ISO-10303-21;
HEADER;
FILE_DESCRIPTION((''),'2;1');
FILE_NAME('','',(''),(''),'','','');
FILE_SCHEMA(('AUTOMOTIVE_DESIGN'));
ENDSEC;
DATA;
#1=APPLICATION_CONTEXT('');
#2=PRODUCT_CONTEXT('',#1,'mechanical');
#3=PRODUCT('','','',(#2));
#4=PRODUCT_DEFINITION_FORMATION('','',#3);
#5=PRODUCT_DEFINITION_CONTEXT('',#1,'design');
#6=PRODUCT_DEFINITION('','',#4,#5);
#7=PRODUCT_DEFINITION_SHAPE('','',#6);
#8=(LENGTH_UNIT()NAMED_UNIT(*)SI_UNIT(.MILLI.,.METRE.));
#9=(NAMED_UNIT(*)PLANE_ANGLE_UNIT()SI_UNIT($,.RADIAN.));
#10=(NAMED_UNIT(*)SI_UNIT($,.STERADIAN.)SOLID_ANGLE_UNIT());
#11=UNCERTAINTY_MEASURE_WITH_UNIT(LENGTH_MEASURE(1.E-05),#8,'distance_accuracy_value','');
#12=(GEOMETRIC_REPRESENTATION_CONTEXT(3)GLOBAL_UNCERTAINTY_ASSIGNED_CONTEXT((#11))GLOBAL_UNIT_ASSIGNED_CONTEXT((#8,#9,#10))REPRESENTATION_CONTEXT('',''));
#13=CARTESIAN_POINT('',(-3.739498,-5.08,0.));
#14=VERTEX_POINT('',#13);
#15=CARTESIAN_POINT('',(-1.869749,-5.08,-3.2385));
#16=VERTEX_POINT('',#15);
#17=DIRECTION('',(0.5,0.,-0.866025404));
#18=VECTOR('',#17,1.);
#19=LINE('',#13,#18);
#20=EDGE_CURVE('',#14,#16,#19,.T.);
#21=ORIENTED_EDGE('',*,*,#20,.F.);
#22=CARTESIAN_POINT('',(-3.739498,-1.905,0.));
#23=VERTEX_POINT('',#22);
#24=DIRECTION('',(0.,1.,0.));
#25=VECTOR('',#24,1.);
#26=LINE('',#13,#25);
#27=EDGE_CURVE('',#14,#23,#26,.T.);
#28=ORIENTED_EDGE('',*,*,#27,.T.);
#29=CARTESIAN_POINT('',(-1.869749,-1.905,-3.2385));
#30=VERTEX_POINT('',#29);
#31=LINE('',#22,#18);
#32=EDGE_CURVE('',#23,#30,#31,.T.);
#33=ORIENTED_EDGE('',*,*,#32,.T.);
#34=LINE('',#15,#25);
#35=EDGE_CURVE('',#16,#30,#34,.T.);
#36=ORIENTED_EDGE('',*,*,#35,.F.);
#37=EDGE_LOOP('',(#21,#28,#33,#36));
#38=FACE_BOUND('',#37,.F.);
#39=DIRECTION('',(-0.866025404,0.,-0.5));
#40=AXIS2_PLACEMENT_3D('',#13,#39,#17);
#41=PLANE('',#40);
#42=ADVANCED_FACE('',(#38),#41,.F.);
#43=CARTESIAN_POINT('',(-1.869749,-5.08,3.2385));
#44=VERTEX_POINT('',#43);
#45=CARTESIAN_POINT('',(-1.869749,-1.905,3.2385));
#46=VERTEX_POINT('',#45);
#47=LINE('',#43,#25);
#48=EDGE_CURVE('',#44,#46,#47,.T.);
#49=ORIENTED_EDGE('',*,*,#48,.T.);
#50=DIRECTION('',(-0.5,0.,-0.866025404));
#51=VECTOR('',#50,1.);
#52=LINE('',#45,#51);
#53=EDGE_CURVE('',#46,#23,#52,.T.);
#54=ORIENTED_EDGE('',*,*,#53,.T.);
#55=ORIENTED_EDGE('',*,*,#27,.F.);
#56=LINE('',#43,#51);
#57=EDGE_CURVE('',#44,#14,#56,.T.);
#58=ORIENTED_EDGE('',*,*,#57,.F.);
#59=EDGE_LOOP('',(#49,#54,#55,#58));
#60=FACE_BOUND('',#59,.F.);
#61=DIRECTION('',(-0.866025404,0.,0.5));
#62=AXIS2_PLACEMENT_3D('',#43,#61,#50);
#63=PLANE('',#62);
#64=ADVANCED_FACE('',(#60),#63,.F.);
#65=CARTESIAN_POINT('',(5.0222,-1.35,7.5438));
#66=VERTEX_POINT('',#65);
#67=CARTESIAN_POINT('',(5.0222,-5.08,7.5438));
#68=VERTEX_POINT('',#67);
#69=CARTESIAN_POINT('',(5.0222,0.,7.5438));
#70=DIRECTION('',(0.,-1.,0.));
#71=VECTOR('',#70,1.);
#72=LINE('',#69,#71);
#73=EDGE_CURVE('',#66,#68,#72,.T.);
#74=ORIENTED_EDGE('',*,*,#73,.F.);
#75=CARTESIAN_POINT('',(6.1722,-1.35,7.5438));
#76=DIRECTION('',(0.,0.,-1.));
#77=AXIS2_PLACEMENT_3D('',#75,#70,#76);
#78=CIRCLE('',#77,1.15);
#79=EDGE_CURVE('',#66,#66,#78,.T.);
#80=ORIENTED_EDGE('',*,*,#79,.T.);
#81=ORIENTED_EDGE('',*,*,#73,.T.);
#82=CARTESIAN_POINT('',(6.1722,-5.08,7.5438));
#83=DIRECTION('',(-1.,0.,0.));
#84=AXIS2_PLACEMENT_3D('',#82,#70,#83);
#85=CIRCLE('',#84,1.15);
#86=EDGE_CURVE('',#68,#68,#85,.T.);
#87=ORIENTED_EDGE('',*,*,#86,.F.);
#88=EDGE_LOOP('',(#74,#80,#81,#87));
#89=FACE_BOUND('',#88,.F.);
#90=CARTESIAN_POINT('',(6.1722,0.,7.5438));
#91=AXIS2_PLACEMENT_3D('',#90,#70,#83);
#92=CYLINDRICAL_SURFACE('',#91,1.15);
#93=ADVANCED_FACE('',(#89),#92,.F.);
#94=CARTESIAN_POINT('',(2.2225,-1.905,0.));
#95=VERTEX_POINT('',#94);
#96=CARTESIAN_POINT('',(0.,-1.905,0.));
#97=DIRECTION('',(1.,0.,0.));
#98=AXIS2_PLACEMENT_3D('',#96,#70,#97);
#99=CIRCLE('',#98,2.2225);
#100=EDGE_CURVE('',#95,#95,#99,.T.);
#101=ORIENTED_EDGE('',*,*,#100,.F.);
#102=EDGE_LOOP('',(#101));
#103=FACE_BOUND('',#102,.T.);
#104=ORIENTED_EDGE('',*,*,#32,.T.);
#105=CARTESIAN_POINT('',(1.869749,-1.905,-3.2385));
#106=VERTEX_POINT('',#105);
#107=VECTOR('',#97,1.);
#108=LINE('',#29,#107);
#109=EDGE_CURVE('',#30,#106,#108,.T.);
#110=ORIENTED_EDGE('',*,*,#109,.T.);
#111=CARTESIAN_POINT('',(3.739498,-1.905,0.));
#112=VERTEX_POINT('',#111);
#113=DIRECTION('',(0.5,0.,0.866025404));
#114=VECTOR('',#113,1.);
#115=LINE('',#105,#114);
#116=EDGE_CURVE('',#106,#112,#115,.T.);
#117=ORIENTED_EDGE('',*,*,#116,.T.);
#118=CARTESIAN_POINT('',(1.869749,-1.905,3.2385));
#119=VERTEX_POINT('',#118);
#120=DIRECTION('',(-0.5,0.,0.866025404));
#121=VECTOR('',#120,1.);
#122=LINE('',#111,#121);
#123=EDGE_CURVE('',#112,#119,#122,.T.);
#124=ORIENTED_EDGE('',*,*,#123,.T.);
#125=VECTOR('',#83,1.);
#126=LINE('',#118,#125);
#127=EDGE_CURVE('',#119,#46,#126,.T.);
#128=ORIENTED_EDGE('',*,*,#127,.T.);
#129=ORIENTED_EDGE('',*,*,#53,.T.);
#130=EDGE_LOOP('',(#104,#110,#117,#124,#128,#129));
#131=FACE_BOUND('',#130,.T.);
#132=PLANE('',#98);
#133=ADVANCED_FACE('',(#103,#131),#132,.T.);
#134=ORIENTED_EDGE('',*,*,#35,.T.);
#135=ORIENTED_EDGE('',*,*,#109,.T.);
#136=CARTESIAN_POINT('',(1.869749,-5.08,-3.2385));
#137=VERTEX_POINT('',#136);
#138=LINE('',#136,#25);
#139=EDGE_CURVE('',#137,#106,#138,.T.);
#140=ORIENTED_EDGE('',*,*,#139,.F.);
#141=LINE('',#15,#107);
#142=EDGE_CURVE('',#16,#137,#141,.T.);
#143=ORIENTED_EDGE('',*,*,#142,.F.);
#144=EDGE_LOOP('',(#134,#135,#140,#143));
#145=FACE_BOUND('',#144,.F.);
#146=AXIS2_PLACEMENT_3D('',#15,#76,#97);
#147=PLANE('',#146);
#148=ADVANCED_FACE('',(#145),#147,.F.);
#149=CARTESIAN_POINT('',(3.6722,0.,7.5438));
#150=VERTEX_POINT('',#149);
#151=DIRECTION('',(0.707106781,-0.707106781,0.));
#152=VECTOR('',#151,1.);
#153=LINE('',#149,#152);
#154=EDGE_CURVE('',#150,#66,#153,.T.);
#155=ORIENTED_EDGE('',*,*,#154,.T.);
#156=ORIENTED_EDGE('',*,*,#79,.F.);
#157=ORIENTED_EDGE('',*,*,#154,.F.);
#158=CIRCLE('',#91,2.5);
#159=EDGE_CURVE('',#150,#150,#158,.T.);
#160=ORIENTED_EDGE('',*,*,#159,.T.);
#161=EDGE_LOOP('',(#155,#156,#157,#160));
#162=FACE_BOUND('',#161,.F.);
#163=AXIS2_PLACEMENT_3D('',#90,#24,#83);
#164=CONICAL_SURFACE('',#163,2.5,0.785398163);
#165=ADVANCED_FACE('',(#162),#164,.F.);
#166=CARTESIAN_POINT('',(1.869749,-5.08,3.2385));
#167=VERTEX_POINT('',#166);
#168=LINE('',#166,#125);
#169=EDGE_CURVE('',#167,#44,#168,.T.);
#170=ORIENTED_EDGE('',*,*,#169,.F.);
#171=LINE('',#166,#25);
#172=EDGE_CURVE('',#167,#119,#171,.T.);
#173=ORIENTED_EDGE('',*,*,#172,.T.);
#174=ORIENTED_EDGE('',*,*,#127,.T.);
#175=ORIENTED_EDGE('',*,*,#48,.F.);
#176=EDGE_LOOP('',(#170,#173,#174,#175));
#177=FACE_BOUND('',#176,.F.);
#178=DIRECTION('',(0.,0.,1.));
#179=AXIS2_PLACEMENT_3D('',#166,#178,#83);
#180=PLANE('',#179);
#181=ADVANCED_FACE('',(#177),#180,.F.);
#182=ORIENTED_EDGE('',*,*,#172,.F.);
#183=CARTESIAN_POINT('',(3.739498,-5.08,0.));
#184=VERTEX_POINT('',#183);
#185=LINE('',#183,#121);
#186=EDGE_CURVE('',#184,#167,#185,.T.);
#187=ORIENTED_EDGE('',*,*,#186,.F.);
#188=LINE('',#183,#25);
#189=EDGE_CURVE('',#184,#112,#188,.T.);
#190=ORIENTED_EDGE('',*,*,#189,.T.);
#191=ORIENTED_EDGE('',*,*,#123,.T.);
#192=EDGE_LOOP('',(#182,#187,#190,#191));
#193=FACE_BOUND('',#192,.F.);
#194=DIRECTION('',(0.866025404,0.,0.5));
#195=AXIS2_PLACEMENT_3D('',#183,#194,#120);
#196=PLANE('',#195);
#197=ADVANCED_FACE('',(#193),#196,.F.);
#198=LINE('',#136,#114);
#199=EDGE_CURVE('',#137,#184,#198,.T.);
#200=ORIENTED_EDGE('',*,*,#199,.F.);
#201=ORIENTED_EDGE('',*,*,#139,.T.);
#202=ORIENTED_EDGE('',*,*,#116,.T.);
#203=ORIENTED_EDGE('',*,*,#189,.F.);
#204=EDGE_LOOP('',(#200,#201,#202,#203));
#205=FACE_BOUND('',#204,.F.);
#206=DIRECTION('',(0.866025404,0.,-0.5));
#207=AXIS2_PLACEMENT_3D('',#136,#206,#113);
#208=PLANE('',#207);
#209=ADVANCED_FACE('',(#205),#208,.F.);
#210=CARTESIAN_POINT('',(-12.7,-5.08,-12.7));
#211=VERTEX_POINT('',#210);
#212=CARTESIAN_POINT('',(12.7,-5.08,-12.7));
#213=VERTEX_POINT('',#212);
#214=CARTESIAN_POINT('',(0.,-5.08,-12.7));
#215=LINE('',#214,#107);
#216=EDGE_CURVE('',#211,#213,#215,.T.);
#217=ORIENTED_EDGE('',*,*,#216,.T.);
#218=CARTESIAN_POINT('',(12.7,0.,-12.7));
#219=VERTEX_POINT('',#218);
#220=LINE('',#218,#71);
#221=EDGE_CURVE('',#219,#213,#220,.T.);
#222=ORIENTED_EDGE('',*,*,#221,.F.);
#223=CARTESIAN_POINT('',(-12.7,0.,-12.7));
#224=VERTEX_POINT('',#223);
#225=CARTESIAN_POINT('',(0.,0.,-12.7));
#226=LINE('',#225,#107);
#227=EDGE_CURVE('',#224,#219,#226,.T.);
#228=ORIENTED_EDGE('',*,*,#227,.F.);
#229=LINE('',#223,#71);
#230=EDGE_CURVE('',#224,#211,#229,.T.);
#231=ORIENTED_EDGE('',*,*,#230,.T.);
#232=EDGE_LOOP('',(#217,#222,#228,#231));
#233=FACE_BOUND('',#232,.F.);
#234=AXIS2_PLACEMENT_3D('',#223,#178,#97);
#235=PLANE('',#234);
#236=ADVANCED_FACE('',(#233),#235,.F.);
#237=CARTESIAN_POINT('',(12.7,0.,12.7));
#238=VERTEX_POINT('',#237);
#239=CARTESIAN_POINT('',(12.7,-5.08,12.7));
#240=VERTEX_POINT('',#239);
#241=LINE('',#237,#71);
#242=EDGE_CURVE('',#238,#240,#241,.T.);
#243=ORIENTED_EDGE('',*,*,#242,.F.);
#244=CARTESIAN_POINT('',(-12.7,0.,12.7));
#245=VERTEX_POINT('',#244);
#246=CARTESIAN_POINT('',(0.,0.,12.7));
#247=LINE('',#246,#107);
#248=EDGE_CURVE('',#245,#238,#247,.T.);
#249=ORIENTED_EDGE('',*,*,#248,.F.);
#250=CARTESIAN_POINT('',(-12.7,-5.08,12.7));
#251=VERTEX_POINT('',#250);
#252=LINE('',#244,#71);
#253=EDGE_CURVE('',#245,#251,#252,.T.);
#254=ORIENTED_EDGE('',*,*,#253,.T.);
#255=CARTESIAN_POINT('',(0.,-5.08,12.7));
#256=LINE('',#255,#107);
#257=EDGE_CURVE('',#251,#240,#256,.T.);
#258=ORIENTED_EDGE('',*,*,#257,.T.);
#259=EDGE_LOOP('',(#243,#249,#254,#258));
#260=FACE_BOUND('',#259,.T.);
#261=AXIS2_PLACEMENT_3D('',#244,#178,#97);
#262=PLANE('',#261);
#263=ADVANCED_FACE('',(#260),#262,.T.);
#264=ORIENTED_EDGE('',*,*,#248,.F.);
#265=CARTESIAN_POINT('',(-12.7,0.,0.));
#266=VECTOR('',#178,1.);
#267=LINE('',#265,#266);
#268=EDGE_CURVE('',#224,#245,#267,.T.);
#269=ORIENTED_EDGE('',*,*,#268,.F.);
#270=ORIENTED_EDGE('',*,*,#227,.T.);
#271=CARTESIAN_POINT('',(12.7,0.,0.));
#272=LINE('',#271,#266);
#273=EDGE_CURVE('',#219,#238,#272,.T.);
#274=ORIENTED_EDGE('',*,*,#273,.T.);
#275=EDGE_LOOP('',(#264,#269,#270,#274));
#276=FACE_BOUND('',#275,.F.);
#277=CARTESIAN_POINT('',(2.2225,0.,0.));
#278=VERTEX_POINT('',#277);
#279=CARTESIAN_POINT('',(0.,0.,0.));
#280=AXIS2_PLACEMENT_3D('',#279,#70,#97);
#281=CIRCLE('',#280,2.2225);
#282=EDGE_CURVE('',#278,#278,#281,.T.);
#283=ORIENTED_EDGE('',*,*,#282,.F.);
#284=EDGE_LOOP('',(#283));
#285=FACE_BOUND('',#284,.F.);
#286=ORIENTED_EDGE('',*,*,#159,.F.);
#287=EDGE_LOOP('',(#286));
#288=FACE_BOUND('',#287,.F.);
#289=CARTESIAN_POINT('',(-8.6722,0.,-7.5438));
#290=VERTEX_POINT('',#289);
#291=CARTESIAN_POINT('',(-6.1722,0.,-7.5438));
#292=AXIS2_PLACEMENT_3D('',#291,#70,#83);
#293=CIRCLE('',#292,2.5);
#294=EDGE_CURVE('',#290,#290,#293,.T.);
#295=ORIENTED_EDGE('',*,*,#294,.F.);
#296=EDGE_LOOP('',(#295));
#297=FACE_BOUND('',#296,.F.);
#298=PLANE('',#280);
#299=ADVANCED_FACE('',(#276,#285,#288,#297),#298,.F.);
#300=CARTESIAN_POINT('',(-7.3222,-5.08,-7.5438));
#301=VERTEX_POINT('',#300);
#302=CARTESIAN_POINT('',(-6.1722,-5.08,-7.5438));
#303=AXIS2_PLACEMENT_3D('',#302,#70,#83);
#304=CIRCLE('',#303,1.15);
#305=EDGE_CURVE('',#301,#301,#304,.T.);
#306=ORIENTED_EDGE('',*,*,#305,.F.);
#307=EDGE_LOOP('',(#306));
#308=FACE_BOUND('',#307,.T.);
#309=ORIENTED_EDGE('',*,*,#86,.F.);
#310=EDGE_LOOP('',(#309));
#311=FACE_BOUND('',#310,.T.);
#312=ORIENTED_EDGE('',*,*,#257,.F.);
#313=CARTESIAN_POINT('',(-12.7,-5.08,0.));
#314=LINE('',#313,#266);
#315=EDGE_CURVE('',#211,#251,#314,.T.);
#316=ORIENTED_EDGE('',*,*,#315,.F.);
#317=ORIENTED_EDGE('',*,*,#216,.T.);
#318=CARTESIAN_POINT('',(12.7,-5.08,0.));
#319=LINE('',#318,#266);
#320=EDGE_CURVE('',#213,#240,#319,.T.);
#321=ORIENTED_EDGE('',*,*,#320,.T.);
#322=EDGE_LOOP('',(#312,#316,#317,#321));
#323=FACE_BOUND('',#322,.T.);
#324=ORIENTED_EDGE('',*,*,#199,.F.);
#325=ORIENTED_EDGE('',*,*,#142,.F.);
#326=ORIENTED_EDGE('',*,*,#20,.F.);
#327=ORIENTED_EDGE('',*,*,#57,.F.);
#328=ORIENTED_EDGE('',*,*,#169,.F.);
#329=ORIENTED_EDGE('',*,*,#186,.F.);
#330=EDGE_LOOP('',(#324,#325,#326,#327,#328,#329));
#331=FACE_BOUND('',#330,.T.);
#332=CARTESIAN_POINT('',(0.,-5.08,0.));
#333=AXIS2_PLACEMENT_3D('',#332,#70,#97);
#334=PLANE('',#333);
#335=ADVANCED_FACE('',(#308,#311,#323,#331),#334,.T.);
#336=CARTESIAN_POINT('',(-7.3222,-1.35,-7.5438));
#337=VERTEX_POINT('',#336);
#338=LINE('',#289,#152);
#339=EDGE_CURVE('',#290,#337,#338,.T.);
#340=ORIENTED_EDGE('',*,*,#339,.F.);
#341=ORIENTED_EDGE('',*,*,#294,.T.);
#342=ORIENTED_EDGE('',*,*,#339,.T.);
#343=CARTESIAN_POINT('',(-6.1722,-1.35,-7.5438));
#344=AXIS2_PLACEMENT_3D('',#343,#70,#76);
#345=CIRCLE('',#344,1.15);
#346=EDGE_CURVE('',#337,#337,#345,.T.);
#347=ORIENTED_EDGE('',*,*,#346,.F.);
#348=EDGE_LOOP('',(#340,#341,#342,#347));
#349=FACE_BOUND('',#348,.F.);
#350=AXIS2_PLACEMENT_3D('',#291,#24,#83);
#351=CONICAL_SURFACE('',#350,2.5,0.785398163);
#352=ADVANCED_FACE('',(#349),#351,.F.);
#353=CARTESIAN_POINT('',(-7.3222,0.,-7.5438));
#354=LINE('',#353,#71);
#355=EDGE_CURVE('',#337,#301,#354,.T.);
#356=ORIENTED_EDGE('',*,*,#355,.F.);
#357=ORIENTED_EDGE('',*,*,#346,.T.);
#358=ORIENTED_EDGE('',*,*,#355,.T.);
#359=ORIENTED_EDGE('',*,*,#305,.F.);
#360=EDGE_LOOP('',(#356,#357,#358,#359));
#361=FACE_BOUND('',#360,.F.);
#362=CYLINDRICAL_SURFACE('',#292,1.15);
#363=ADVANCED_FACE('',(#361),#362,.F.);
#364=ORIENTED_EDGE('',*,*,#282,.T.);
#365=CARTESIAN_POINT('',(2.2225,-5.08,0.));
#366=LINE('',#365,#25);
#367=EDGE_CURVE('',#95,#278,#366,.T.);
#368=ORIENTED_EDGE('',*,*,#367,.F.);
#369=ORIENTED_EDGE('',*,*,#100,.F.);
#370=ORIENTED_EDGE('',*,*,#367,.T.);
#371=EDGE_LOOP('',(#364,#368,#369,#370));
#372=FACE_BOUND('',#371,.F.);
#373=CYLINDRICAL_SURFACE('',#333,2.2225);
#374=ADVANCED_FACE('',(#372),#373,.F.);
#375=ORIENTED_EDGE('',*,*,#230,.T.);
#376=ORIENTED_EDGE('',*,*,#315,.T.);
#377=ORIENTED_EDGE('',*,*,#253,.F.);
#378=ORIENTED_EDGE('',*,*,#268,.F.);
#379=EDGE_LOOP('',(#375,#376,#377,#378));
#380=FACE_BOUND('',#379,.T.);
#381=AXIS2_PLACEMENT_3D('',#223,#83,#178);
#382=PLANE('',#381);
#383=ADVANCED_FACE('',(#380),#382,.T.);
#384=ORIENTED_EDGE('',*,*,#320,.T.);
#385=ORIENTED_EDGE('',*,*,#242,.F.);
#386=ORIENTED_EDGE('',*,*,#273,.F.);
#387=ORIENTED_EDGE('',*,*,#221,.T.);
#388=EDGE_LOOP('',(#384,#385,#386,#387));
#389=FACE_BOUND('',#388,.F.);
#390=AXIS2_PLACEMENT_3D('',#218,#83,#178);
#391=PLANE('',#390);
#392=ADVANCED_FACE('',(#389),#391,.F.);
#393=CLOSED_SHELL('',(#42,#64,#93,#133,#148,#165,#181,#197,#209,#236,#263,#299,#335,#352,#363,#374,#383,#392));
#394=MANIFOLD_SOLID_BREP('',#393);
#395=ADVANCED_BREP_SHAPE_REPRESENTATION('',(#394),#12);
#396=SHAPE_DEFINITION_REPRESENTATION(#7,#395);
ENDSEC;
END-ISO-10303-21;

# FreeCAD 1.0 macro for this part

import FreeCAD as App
import Part
import Sketcher
Q = App.Units.Quantity


def add_polygon(sketch, points):
    """Adds a closed chain of lines whose ends are joined by coincident constraints."""
    first, n = sketch.GeometryCount, len(points)
    for a, b in zip(points, points[1:] + points[:1]):
        sketch.addGeometry(Part.LineSegment(App.Vector(*a, 0), App.Vector(*b, 0)), False)
    for i in range(n):
        sketch.addConstraint(Sketcher.Constraint("Coincident", first + i, 2, first + (i + 1) % n, 1))

doc = App.newDocument("Part")
params = doc.addObject("Spreadsheet::Sheet", "Params")
for row, (alias, value) in enumerate([
    ("sketch1_width", "1 in"),
    ("pad1_length", "0.2 in"),
    ("hole_diameter", "2.3 mm"),
    ("hole_csink_diameter", "5 mm"),
    ("pocket1_length", "0.125 in"),
    ("sketch4_diameter", "0.175 in"),
], start=1):
    params.set(f"A{row}", alias)
    params.set(f"B{row}", "=" + value)
    params.setAlias(f"B{row}", alias)

body = doc.addObject("PartDesign::Body", "Body")

# Sketch on XZ plane
sketch1 = doc.addObject("Sketcher::SketchObject", "Sketch")
body.addObject(sketch1)
sketch1.AttachmentSupport = (doc.XZ_Plane, [""])
sketch1.MapMode = "FlatFace"
add_polygon(sketch1, [(-13, 13), (-13, -13), (13, -13), (13, 13)])  # lines 0-3
sketch1.addConstraint(Sketcher.Constraint("Vertical", 0))
sketch1.addConstraint(Sketcher.Constraint("Horizontal", 1))
sketch1.addConstraint(Sketcher.Constraint("Vertical", 2))
sketch1.addConstraint(Sketcher.Constraint("Horizontal", 3))
sketch1.addConstraint(Sketcher.Constraint("Symmetric", 0, 2, 2, 2, -1, 1))
sketch1.addConstraint(Sketcher.Constraint("Equal", 3, 0))
sketch1.addConstraint(Sketcher.Constraint("DistanceX", 1, 1, 1, 2, Q("1 in")))
sketch1.setExpression("Constraints[10]", "Params.sketch1_width")
pad1 = doc.addObject("PartDesign::Pad", "Pad")
body.addObject(pad1)
pad1.Profile = sketch1
pad1.setExpression("Length", "Params.pad1_length")

# Sketch on XZ plane
sketch2 = doc.addObject("Sketcher::SketchObject", "Sketch001")
body.addObject(sketch2)
sketch2.AttachmentSupport = (doc.XZ_Plane, [""])
sketch2.MapMode = "FlatFace"
sketch2.addGeometry(Part.Circle(App.Vector(6.2, 7.5, 0), App.Vector(0, 0, 1), 1.1), False)
sketch2.addGeometry(Part.Circle(App.Vector(-6.2, -7.5, 0), App.Vector(0, 0, 1), 1.1), False)
sketch2.addConstraint(Sketcher.Constraint("Equal", 0, 1))
sketch2.addConstraint(Sketcher.Constraint("Symmetric", 0, 3, 1, 3, -1, 1))
sketch2.addConstraint(Sketcher.Constraint("Diameter", 0, Q("2.3 mm")))
sketch2.addConstraint(Sketcher.Constraint("DistanceX", -1, 1, 0, 3, Q("0.243 in")))
sketch2.addConstraint(Sketcher.Constraint("DistanceY", -1, 1, 0, 3, Q("0.297 in")))
doc.recompute()
hole = doc.addObject("PartDesign::Hole", "Hole")
body.addObject(hole)
hole.Profile = sketch2
hole.ThreadType = "None"
hole.setExpression("Diameter", "Params.hole_diameter")
hole.DepthType = "ThroughAll"
hole.HoleCutType = "Countersink"
hole.setExpression("HoleCutDiameter", "Params.hole_csink_diameter")
hole.HoleCutCountersinkAngle = 90
hole.Reversed = True

# Sketch on XZ plane
sketch3 = doc.addObject("Sketcher::SketchObject", "Sketch002")
body.addObject(sketch3)
sketch3.AttachmentSupport = (doc.XZ_Plane, [""])
sketch3.MapMode = "FlatFace"
sketch3.AttachmentOffset = App.Placement(App.Vector(0, 0, 0.2 * 25.4), App.Rotation())
add_polygon(sketch3, [(3.7, 0), (1.9, 3.2), (-1.9, 3.2), (-3.7, 0), (-1.9, -3.2), (1.9, -3.2)])  # lines 0-5
sketch3.addConstraint(Sketcher.Constraint("Horizontal", 1))
sketch3.addConstraint(Sketcher.Constraint("Horizontal", 4))
sketch3.addConstraint(Sketcher.Constraint("Symmetric", 0, 2, 3, 2, -1, 1))
sketch3.addConstraint(Sketcher.Constraint("Symmetric", 2, 2, 5, 2, -1, 1))
sketch3.addConstraint(Sketcher.Constraint("PointOnObject", 2, 2, -1))
sketch3.addConstraint(Sketcher.Constraint("Parallel", 2, 5))
sketch3.addConstraint(Sketcher.Constraint("Vertical", 1, 2, 3, 2))
sketch3.addConstraint(Sketcher.Constraint("Angle", 0, Q("120 deg")))
sketch3.addConstraint(Sketcher.Constraint("DistanceY", 3, 2, 1, 2, Q("0.255 in")))
sketch3.addConstraint(Sketcher.Constraint("DistanceX", 1, 2, 1, 1, Q("3.739498 mm")))
pocket1 = doc.addObject("PartDesign::Pocket", "Pocket")
body.addObject(pocket1)
pocket1.Profile = sketch3
pocket1.setExpression("Length", "Params.pocket1_length")

# Sketch on XZ plane
sketch4 = doc.addObject("Sketcher::SketchObject", "Sketch003")
body.addObject(sketch4)
sketch4.AttachmentSupport = (doc.XZ_Plane, [""])
sketch4.MapMode = "FlatFace"
sketch4.AttachmentOffset = App.Placement(App.Vector(0, 0, 0.2 * 25.4), App.Rotation())
sketch4.addGeometry(Part.Circle(App.Vector(0, 0, 0), App.Vector(0, 0, 1), 2.2), False)
sketch4.addConstraint(Sketcher.Constraint("Coincident", 0, 3, -1, 1))
sketch4.addConstraint(Sketcher.Constraint("Diameter", 0, Q("0.175 in")))
sketch4.setExpression("Constraints[1]", "Params.sketch4_diameter")
pocket2 = doc.addObject("PartDesign::Pocket", "Pocket001")
body.addObject(pocket2)
pocket2.Profile = sketch4
pocket2.Type = "ThroughAll"

doc.recompute()
